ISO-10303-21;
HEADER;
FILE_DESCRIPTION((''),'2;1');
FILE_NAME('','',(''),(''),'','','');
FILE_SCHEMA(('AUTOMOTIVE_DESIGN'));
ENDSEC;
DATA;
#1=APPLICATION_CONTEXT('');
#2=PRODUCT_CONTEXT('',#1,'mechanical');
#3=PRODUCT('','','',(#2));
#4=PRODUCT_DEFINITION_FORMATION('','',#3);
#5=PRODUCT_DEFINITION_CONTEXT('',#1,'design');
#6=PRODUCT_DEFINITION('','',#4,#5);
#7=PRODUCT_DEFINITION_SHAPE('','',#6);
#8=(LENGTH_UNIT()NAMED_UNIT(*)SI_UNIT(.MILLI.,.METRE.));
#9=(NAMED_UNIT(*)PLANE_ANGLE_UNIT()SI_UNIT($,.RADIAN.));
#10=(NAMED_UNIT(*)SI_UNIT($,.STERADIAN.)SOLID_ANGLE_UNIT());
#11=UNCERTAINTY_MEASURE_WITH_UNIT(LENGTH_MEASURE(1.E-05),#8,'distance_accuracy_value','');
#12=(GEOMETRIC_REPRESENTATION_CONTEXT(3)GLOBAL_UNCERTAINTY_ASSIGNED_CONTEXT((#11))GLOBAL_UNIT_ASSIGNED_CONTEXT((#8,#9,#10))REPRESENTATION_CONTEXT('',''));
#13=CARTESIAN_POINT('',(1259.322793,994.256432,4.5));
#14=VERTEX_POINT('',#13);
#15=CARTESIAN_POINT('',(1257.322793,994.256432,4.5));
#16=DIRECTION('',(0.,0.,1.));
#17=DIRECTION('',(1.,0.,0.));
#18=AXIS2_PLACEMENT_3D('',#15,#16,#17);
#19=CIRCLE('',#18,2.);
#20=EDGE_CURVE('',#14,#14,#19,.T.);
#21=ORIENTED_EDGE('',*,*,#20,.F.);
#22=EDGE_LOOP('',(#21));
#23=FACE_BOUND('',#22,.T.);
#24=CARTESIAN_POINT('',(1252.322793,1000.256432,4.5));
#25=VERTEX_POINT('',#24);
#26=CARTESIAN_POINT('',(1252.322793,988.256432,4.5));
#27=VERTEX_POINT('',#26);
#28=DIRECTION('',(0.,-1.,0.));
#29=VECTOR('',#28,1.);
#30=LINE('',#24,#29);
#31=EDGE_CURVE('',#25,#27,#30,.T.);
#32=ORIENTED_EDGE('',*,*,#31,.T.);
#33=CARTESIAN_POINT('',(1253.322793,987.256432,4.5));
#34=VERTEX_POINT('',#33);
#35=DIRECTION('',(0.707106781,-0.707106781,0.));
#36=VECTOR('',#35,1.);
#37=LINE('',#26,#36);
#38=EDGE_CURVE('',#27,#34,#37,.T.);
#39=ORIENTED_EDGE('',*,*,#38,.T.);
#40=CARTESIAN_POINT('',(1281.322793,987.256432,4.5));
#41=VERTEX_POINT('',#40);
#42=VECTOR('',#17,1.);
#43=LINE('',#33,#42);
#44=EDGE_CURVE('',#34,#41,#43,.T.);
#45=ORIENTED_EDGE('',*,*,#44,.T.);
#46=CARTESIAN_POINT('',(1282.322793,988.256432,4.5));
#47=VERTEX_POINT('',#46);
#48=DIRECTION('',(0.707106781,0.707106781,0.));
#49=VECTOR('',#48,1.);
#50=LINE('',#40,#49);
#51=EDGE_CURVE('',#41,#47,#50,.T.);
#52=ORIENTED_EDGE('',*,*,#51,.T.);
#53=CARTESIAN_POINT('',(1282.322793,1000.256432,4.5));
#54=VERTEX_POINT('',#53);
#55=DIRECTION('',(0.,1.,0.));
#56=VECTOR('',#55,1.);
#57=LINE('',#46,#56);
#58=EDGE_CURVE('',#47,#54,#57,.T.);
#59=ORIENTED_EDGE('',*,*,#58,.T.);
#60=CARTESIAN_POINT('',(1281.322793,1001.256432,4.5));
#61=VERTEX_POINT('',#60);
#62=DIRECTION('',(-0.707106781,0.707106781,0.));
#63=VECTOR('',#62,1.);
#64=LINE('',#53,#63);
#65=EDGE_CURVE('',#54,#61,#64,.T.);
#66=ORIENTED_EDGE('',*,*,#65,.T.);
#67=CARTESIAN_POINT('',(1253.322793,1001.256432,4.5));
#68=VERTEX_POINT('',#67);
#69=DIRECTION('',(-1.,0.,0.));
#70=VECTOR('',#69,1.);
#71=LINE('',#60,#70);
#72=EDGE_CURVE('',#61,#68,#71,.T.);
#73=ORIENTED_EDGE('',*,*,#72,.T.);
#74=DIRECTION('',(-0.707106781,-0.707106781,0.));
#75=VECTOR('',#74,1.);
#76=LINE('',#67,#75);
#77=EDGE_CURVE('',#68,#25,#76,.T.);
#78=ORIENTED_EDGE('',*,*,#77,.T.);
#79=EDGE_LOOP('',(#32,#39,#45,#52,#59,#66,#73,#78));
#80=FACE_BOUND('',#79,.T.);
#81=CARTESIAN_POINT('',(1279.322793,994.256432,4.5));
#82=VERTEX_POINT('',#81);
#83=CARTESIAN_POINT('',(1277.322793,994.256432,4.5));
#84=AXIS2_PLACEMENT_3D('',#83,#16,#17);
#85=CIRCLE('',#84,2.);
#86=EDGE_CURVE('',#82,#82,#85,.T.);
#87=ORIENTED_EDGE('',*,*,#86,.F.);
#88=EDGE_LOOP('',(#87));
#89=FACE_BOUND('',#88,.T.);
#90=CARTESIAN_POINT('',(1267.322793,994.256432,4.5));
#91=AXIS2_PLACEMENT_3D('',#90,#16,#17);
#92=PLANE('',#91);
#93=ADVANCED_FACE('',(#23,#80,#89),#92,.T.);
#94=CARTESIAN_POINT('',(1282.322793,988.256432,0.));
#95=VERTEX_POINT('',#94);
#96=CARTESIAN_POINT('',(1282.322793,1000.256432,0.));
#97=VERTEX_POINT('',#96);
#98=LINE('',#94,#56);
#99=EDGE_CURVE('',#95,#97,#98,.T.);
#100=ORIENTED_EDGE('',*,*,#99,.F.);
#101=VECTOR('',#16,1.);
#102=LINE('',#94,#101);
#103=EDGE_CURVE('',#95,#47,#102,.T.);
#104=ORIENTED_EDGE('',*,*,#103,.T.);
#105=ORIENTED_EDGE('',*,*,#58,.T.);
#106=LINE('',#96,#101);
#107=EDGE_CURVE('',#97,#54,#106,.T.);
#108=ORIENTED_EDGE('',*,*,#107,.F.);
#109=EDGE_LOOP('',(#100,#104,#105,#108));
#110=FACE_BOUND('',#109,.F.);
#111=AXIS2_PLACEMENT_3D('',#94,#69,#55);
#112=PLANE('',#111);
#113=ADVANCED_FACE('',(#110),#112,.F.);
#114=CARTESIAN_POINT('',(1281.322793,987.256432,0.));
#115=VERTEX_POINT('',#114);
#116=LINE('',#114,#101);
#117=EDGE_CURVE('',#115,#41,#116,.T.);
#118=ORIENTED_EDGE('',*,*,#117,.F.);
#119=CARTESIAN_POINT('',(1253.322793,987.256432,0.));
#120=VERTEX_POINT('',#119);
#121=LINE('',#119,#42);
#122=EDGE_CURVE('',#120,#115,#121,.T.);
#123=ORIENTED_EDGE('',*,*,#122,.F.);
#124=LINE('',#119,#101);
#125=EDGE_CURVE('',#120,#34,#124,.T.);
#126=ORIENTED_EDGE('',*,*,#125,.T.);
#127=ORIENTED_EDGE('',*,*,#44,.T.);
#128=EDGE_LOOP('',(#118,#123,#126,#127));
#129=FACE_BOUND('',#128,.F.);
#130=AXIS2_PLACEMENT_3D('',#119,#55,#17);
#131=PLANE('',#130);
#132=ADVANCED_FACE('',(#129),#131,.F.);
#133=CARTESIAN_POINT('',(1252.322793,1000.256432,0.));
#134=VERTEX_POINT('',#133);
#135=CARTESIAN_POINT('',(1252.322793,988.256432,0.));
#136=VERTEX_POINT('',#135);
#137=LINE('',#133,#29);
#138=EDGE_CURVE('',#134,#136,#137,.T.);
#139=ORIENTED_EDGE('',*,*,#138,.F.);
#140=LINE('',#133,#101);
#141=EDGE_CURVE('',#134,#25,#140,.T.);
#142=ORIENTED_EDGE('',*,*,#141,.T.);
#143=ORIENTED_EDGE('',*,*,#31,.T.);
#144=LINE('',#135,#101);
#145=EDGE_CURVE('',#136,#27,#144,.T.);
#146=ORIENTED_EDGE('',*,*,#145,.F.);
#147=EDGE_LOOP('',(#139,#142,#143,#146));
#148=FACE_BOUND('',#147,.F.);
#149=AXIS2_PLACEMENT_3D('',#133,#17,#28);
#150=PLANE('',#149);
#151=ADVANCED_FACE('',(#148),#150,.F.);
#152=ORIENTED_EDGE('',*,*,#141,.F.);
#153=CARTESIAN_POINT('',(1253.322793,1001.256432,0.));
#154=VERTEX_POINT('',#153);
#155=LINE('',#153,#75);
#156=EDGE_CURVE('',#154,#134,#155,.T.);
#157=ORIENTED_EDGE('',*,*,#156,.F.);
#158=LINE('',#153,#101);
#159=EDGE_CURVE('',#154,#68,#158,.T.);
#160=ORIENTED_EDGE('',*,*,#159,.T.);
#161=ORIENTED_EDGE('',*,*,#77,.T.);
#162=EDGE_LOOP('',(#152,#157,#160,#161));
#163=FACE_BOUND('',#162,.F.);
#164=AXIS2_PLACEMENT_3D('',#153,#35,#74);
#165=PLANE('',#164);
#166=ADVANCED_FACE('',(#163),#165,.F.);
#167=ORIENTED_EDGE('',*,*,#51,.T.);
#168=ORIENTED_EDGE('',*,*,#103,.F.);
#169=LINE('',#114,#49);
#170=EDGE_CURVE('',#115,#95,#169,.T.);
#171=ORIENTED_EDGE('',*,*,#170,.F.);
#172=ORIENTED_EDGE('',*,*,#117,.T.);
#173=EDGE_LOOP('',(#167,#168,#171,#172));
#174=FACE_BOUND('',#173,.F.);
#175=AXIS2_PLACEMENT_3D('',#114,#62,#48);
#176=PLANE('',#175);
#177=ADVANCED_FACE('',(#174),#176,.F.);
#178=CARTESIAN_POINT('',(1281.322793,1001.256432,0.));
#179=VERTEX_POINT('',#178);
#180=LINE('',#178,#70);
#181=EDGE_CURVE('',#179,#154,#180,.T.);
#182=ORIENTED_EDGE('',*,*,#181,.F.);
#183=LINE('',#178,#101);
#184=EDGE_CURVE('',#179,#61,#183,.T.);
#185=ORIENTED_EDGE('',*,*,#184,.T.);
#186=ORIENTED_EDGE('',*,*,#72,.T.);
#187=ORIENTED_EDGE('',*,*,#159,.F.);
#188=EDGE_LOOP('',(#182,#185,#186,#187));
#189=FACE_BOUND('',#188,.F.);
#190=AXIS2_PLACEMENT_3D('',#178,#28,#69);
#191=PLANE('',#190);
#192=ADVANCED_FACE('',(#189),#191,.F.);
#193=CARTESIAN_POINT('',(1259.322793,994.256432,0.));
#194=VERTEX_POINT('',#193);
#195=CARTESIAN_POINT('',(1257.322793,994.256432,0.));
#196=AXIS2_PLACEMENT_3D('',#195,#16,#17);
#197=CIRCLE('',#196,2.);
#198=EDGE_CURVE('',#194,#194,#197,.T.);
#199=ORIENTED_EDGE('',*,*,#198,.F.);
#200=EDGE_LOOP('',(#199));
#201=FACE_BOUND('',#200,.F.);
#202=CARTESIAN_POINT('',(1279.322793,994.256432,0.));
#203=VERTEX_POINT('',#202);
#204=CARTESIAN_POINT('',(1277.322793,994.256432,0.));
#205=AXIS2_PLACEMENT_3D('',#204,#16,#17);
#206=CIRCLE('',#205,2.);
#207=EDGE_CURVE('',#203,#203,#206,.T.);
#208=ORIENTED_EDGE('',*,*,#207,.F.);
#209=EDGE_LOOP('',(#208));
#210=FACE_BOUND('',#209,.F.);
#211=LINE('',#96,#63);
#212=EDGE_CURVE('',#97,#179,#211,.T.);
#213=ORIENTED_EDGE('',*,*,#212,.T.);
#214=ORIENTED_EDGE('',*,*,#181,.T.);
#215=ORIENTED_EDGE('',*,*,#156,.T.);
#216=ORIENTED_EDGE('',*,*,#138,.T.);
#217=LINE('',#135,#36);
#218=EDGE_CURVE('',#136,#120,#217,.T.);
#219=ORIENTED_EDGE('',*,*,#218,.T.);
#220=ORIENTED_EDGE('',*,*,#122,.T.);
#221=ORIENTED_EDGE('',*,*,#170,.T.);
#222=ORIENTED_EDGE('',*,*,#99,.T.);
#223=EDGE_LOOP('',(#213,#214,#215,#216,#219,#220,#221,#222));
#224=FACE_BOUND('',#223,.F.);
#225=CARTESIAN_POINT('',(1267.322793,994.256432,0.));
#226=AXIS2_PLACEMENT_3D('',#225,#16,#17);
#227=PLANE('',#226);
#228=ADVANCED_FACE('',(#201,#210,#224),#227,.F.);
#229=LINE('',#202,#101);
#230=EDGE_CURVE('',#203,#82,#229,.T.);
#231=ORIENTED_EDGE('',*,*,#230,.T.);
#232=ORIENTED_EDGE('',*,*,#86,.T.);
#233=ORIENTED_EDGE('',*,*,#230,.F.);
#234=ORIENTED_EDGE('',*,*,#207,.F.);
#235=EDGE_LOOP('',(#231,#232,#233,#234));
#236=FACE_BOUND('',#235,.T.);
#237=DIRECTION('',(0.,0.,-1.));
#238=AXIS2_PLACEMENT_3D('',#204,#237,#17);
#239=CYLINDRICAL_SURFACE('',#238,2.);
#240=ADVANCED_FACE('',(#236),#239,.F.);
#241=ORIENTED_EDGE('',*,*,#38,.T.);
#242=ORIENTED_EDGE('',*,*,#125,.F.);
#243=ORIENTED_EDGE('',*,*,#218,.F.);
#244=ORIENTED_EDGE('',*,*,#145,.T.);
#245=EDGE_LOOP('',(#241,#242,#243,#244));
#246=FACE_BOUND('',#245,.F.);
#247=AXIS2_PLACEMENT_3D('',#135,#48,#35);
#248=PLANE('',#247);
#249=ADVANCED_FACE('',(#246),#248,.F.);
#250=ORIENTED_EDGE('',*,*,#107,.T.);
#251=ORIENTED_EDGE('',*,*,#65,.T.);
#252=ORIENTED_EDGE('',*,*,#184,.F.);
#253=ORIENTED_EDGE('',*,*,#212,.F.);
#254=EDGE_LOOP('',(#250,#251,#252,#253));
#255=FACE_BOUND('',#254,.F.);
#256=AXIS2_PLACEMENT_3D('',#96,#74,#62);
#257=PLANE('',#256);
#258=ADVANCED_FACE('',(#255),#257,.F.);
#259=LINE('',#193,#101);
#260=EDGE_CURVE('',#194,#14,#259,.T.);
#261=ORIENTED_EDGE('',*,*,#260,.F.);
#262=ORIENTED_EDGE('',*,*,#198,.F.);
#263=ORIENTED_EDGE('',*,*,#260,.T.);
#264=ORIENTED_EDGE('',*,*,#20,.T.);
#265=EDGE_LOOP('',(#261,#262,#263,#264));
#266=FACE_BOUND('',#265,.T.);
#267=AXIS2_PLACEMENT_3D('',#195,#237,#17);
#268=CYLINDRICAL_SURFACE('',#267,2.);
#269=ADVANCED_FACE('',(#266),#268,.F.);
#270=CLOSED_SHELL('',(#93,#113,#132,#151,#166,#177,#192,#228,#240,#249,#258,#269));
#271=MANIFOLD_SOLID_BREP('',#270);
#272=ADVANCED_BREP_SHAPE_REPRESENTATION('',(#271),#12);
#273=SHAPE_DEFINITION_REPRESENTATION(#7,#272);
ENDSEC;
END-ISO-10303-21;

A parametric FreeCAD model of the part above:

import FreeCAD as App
import Part
import Sketcher
from FreeCAD import Vector
Q = App.Units.Quantity

doc = App.newDocument("Part")
body = doc.addObject("PartDesign::Body", "Body")

sketch1 = body.newObject("Sketcher::SketchObject", "Sketch")
sketch1.AttachmentSupport = (doc.getObject("XY_Plane"), [""])
sketch1.MapMode = "FlatFace"
sketch1.addGeometry([
    Part.LineSegment(Vector(1281.3, 1001.3, 0), Vector(1253.3, 1001.3, 0)),
    Part.LineSegment(Vector(1253.3, 1001.3, 0), Vector(1252.3, 1000.3, 0)),
    Part.LineSegment(Vector(1252.3, 1000.3, 0), Vector(1252.3, 988.3, 0)),
    Part.LineSegment(Vector(1252.3, 988.3, 0), Vector(1253.3, 987.3, 0)),
    Part.LineSegment(Vector(1253.3, 987.3, 0), Vector(1281.3, 987.3, 0)),
    Part.LineSegment(Vector(1281.3, 987.3, 0), Vector(1282.3, 988.3, 0)),
    Part.LineSegment(Vector(1282.3, 988.3, 0), Vector(1282.3, 1000.3, 0)),
    Part.LineSegment(Vector(1282.3, 1000.3, 0), Vector(1281.3, 1001.3, 0)),
    Part.Circle(Vector(1257.3, 994.3, 0), Vector(0, 0, 1), 2),
    Part.Circle(Vector(1277.3, 994.3, 0), Vector(0, 0, 1), 2),
], False)
sketch1.addConstraint([
    Sketcher.Constraint("Coincident", 0, 2, 1, 1),
    Sketcher.Constraint("Coincident", 1, 2, 2, 1),
    Sketcher.Constraint("Coincident", 2, 2, 3, 1),
    Sketcher.Constraint("Coincident", 3, 2, 4, 1),
    Sketcher.Constraint("Coincident", 4, 2, 5, 1),
    Sketcher.Constraint("Coincident", 5, 2, 6, 1),
    Sketcher.Constraint("Coincident", 6, 2, 7, 1),
    Sketcher.Constraint("Coincident", 7, 2, 0, 1),
    Sketcher.Constraint("Horizontal", 0),
    Sketcher.Constraint("Vertical", 2),
    Sketcher.Constraint("Horizontal", 4),
    Sketcher.Constraint("Vertical", 6),
    Sketcher.Constraint("Equal", 8, 9),
    Sketcher.Constraint("Perpendicular", 1, 3),
    Sketcher.Constraint("Perpendicular", 3, 5),
    Sketcher.Constraint("Perpendicular", 5, 7),
    Sketcher.Constraint("Horizontal", 8, 3, 9, 3),
    Sketcher.Constraint("Horizontal", 2, 2, 5, 2),
    Sketcher.Constraint("Horizontal", 1, 2, 6, 2),
    Sketcher.Constraint("Vertical", 0, 2, 3, 2),
    Sketcher.Constraint("Vertical", 4, 2, 7, 2),
    Sketcher.Constraint("Diameter", 8, Q("4 mm")),
    Sketcher.Constraint("DistanceX", 0, 2, 0, 1, Q("28 mm")),
    Sketcher.Constraint("DistanceY", 2, 2, 2, 1, Q("12 mm")),
    Sketcher.Constraint("DistanceX", 8, 3, 9, 3, Q("20 mm")),
    Sketcher.Constraint("DistanceX", 0, 2, 8, 3, Q("4 mm")),
    Sketcher.Constraint("DistanceY", 8, 3, 0, 2, Q("7 mm")),
    Sketcher.Constraint("DistanceX", 1, 2, 0, 2, Q("1 mm")),
    Sketcher.Constraint("DistanceX", -1, 1, 8, 3, Q("1257.322793 mm")),
    Sketcher.Constraint("DistanceY", -1, 1, 8, 3, Q("994.256432 mm")),
])
pad1 = body.newObject("PartDesign::Pad", "Pad")
pad1.Profile = sketch1
pad1.Length = 4.5

doc.recompute()
